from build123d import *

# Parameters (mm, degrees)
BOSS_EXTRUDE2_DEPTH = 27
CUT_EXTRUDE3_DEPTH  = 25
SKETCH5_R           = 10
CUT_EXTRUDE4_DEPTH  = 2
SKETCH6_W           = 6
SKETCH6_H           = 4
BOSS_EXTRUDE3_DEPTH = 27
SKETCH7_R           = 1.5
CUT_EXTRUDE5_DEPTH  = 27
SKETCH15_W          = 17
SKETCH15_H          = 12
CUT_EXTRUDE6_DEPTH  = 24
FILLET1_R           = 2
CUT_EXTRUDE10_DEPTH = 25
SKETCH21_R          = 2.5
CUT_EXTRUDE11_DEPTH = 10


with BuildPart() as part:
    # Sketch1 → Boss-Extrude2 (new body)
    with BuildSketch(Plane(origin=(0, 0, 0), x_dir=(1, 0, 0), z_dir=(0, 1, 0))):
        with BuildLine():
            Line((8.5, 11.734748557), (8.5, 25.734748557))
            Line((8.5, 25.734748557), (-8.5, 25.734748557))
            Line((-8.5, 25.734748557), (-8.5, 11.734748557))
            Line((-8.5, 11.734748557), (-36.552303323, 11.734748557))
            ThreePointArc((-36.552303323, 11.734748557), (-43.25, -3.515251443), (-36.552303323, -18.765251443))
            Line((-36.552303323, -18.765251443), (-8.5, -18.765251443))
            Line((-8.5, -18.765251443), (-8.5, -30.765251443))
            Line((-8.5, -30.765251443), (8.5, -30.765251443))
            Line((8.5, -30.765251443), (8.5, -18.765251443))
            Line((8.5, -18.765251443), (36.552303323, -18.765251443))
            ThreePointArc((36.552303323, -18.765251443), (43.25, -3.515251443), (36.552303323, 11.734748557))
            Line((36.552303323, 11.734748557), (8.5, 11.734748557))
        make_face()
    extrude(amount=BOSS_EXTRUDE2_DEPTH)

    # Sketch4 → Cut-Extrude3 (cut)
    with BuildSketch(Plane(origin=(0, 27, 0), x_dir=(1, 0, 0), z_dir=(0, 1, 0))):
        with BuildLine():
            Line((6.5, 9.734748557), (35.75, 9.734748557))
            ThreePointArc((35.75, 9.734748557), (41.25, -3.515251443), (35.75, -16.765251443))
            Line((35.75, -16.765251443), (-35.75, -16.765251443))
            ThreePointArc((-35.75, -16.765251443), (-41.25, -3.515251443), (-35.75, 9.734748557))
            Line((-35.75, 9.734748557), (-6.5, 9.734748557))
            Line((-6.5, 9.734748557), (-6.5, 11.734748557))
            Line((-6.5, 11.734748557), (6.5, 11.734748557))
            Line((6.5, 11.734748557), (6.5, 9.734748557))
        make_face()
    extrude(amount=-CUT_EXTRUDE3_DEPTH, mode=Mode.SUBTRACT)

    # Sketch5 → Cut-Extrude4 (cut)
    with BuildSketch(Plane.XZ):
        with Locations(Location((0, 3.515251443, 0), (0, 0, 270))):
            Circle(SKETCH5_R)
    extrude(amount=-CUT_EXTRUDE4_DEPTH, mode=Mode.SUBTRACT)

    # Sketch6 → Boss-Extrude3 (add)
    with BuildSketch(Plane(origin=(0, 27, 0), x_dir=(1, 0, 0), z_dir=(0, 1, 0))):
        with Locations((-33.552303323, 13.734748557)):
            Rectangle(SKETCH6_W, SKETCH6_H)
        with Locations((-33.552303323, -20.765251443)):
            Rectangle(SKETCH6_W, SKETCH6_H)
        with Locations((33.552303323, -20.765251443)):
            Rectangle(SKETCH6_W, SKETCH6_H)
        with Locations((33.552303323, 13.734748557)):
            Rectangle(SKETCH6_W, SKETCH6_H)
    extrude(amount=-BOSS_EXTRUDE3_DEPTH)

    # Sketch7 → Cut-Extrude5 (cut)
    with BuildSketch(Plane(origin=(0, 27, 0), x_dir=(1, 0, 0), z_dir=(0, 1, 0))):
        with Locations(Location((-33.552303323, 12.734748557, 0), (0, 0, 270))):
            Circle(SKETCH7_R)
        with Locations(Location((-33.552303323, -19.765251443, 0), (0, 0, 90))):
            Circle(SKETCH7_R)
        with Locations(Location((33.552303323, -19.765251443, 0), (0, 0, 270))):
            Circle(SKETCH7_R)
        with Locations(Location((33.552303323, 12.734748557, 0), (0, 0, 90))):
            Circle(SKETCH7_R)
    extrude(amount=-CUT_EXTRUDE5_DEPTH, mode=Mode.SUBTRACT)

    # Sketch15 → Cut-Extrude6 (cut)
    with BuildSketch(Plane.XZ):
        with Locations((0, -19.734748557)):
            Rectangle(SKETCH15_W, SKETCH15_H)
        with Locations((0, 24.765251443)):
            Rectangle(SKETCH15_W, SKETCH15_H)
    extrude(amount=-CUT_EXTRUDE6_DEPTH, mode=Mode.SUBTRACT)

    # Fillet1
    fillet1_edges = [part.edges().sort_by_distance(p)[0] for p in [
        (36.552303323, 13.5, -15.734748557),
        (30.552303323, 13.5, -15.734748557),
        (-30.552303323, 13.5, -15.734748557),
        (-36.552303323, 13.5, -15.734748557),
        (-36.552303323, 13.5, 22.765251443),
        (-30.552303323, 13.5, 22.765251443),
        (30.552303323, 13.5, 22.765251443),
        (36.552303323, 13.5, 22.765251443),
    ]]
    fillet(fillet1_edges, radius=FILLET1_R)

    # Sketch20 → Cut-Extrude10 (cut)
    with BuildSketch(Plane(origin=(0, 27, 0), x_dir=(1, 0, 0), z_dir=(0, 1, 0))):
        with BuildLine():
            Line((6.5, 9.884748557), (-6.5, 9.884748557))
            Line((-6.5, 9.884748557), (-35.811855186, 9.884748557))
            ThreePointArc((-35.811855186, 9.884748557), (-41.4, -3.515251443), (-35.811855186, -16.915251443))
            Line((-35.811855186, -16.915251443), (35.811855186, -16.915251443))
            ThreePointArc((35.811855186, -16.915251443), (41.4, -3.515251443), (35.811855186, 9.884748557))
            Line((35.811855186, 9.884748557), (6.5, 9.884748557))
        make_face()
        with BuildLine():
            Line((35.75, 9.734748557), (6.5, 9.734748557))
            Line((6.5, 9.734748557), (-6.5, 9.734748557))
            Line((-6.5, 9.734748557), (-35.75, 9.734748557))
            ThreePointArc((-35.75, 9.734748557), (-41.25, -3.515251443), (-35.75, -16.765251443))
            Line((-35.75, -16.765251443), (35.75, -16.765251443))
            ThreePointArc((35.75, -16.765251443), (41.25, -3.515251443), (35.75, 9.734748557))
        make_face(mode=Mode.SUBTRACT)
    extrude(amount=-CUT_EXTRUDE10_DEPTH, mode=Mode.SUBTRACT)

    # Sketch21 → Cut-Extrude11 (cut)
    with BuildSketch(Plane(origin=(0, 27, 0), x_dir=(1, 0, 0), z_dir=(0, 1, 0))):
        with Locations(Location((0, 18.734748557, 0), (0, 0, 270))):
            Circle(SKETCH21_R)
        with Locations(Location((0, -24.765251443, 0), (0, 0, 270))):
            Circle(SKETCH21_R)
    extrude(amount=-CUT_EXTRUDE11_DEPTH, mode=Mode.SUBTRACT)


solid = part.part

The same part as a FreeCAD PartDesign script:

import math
import FreeCAD as App
import Part
import Sketcher
from FreeCAD import Vector
Q = App.Units.Quantity


def edges_at(feature, points):
    """Names of the edges that pass closest to the given points."""
    edges = feature.Shape.Edges
    near = lambda p: min(range(len(edges)), key=lambda i: edges[i].distToShape(Part.Vertex(*p))[0])
    return sorted({f"Edge{near(p) + 1}" for p in points})

doc = App.newDocument("Part")
body = doc.addObject("PartDesign::Body", "Body")

# Sketch on XZ plane
sketch1 = doc.addObject("Sketcher::SketchObject", "Sketch")
body.addObject(sketch1)
sketch1.AttachmentSupport = (doc.XZ_Plane, [""])
sketch1.MapMode = "FlatFace"
sketch1.addGeometry(Part.LineSegment(Vector(8.5, -11.734749, 0), Vector(8.5, -25.734749, 0)), False)
sketch1.addGeometry(Part.LineSegment(Vector(8.5, -25.734749, 0), Vector(-8.5, -25.734749, 0)), False)
sketch1.addGeometry(Part.LineSegment(Vector(-8.5, -25.734749, 0), Vector(-8.5, -11.734749, 0)), False)
sketch1.addGeometry(Part.LineSegment(Vector(-8.5, -11.734749, 0), Vector(-36.552303, -11.734749, 0)), False)
sketch1.addGeometry(Part.ArcOfCircle(Part.Circle(Vector(-22.539773, 3.515251, 0), Vector(0, 0, 1), 20.710227), math.radians(132.578488), math.radians(227.421512)), False)
sketch1.addGeometry(Part.LineSegment(Vector(-36.552303, 18.765251, 0), Vector(-8.5, 18.765251, 0)), False)
sketch1.addGeometry(Part.LineSegment(Vector(-8.5, 18.765251, 0), Vector(-8.5, 30.765251, 0)), False)
sketch1.addGeometry(Part.LineSegment(Vector(-8.5, 30.765251, 0), Vector(8.5, 30.765251, 0)), False)
sketch1.addGeometry(Part.LineSegment(Vector(8.5, 30.765251, 0), Vector(8.5, 18.765251, 0)), False)
sketch1.addGeometry(Part.LineSegment(Vector(8.5, 18.765251, 0), Vector(36.552303, 18.765251, 0)), False)
sketch1.addGeometry(Part.ArcOfCircle(Part.Circle(Vector(22.539773, 3.515251, 0), Vector(0, 0, 1), 20.710227), math.radians(-47.421512), math.radians(47.421512)), False)
sketch1.addGeometry(Part.LineSegment(Vector(36.552303, -11.734749, 0), Vector(8.5, -11.734749, 0)), False)
sketch1.addConstraint(Sketcher.Constraint("Coincident", 0, 2, 1, 1))
sketch1.addConstraint(Sketcher.Constraint("Coincident", 1, 2, 2, 1))
sketch1.addConstraint(Sketcher.Constraint("Coincident", 2, 2, 3, 1))
sketch1.addConstraint(Sketcher.Constraint("Coincident", 3, 2, 4, 2))
sketch1.addConstraint(Sketcher.Constraint("Coincident", 4, 1, 5, 1))
sketch1.addConstraint(Sketcher.Constraint("Coincident", 5, 2, 6, 1))
sketch1.addConstraint(Sketcher.Constraint("Coincident", 6, 2, 7, 1))
sketch1.addConstraint(Sketcher.Constraint("Coincident", 7, 2, 8, 1))
sketch1.addConstraint(Sketcher.Constraint("Coincident", 8, 2, 9, 1))
sketch1.addConstraint(Sketcher.Constraint("Coincident", 9, 2, 10, 2))
sketch1.addConstraint(Sketcher.Constraint("Coincident", 10, 1, 11, 1))
sketch1.addConstraint(Sketcher.Constraint("Coincident", 11, 2, 0, 1))
sketch1.addConstraint(Sketcher.Constraint("Vertical", 0))
sketch1.addConstraint(Sketcher.Constraint("Horizontal", 1))
sketch1.addConstraint(Sketcher.Constraint("Vertical", 2))
sketch1.addConstraint(Sketcher.Constraint("Horizontal", 3))
sketch1.addConstraint(Sketcher.Constraint("Horizontal", 5))
sketch1.addConstraint(Sketcher.Constraint("Vertical", 6))
sketch1.addConstraint(Sketcher.Constraint("Horizontal", 7))
sketch1.addConstraint(Sketcher.Constraint("Vertical", 8))
sketch1.addConstraint(Sketcher.Constraint("Horizontal", 9))
sketch1.addConstraint(Sketcher.Constraint("Horizontal", 11))
sketch1.addConstraint(Sketcher.Constraint("Equal", 4, 10))
sketch1.addConstraint(Sketcher.Constraint("Symmetric", 4, 3, 10, 3, -2))
sketch1.addConstraint(Sketcher.Constraint("Symmetric", 5, 2, 8, 2, -2))
sketch1.addConstraint(Sketcher.Constraint("Symmetric", 2, 2, 11, 2, -2))
sketch1.addConstraint(Sketcher.Constraint("Vertical", 3, 2, 4, 1))
sketch1.addConstraint(Sketcher.Constraint("Vertical", 2, 2, 5, 2))
sketch1.addConstraint(Sketcher.Constraint("DistanceX", 1, 2, 1, 1, Q("17 mm")))
sketch1.addConstraint(Sketcher.Constraint("DistanceY", 0, 2, 0, 1, Q("14 mm")))
sketch1.addConstraint(Sketcher.Constraint("DistanceY", 6, 1, 6, 2, Q("12 mm")))
sketch1.addConstraint(Sketcher.Constraint("DistanceY", 3, 2, 4, 1, Q("30.5 mm")))
sketch1.addConstraint(Sketcher.Constraint("Radius", 4, Q("20.710227 mm")))
sketch1.addConstraint(Sketcher.Constraint("DistanceX", 3, 2, 3, 1, Q("28.052303 mm")))
sketch1.addConstraint(Sketcher.Constraint("DistanceY", -1, 1, 4, 3, Q("3.515251 mm")))
pad1 = doc.addObject("PartDesign::Pad", "Pad")
body.addObject(pad1)
pad1.Profile = sketch1
pad1.Length = 27
pad1.Reversed = True

# Sketch on XZ plane
sketch2 = doc.addObject("Sketcher::SketchObject", "Sketch001")
body.addObject(sketch2)
sketch2.AttachmentSupport = (doc.XZ_Plane, [""])
sketch2.MapMode = "FlatFace"
sketch2.AttachmentOffset = App.Placement(Vector(0, 0, -27), App.Rotation())
sketch2.addGeometry(Part.LineSegment(Vector(35.75, -9.734749, 0), Vector(6.5, -9.734749, 0)), False)
sketch2.addGeometry(Part.LineSegment(Vector(6.5, -9.734749, 0), Vector(6.5, -11.734749, 0)), False)
sketch2.addGeometry(Part.LineSegment(Vector(6.5, -11.734749, 0), Vector(-6.5, -11.734749, 0)), False)
sketch2.addGeometry(Part.LineSegment(Vector(-6.5, -11.734749, 0), Vector(-6.5, -9.734749, 0)), False)
sketch2.addGeometry(Part.LineSegment(Vector(-6.5, -9.734749, 0), Vector(-35.75, -9.734749, 0)), False)
sketch2.addGeometry(Part.ArcOfCircle(Part.Circle(Vector(-22.539773, 3.515251, 0), Vector(0, 0, 1), 18.710227), math.radians(134.913878), math.radians(225.086122)), False)
sketch2.addGeometry(Part.LineSegment(Vector(-35.75, 16.765251, 0), Vector(35.75, 16.765251, 0)), False)
sketch2.addGeometry(Part.ArcOfCircle(Part.Circle(Vector(22.539773, 3.515251, 0), Vector(0, 0, 1), 18.710227), math.radians(-45.086122), math.radians(45.086122)), False)
sketch2.addConstraint(Sketcher.Constraint("Coincident", 0, 2, 1, 1))
sketch2.addConstraint(Sketcher.Constraint("Coincident", 1, 2, 2, 1))
sketch2.addConstraint(Sketcher.Constraint("Coincident", 2, 2, 3, 1))
sketch2.addConstraint(Sketcher.Constraint("Coincident", 3, 2, 4, 1))
sketch2.addConstraint(Sketcher.Constraint("Coincident", 4, 2, 5, 2))
sketch2.addConstraint(Sketcher.Constraint("Coincident", 5, 1, 6, 1))
sketch2.addConstraint(Sketcher.Constraint("Coincident", 6, 2, 7, 2))
sketch2.addConstraint(Sketcher.Constraint("Coincident", 7, 1, 0, 1))
sketch2.addConstraint(Sketcher.Constraint("Horizontal", 0))
sketch2.addConstraint(Sketcher.Constraint("Vertical", 1))
sketch2.addConstraint(Sketcher.Constraint("Horizontal", 2))
sketch2.addConstraint(Sketcher.Constraint("Vertical", 3))
sketch2.addConstraint(Sketcher.Constraint("Horizontal", 4))
sketch2.addConstraint(Sketcher.Constraint("Horizontal", 6))
sketch2.addConstraint(Sketcher.Constraint("Equal", 5, 7))
sketch2.addConstraint(Sketcher.Constraint("Symmetric", 5, 3, 7, 3, -2))
sketch2.addConstraint(Sketcher.Constraint("Symmetric", 0, 2, 3, 2, -2))
sketch2.addConstraint(Sketcher.Constraint("Vertical", 4, 2, 5, 1))
sketch2.addConstraint(Sketcher.Constraint("DistanceX", 2, 2, 2, 1, Q("13 mm")))
sketch2.addConstraint(Sketcher.Constraint("DistanceY", 1, 2, 1, 1, Q("2 mm")))
sketch2.addConstraint(Sketcher.Constraint("DistanceX", 6, 1, 6, 2, Q("71.5 mm")))
sketch2.addConstraint(Sketcher.Constraint("DistanceY", 4, 2, 5, 1, Q("26.5 mm")))
sketch2.addConstraint(Sketcher.Constraint("Radius", 5, Q("18.710227 mm")))
sketch2.addConstraint(Sketcher.Constraint("DistanceY", -1, 1, 5, 3, Q("3.515251 mm")))
pocket1 = doc.addObject("PartDesign::Pocket", "Pocket")
body.addObject(pocket1)
pocket1.Profile = sketch2
pocket1.Length = 25
pocket1.Reversed = True

# Sketch on XZ plane
sketch3 = doc.addObject("Sketcher::SketchObject", "Sketch002")
body.addObject(sketch3)
sketch3.AttachmentSupport = (doc.XZ_Plane, [""])
sketch3.MapMode = "FlatFace"
sketch3.addGeometry(Part.Circle(Vector(0, 3.515251, 0), Vector(0, 0, 1), 10), False)
sketch3.addConstraint(Sketcher.Constraint("PointOnObject", 0, 3, -2))
sketch3.addConstraint(Sketcher.Constraint("Diameter", 0, Q("20 mm")))
sketch3.addConstraint(Sketcher.Constraint("DistanceY", -1, 1, 0, 3, Q("3.515251 mm")))
pocket2 = doc.addObject("PartDesign::Pocket", "Pocket001")
body.addObject(pocket2)
pocket2.Profile = sketch3
pocket2.Length = 2

# Sketch on XZ plane
sketch4 = doc.addObject("Sketcher::SketchObject", "Sketch003")
body.addObject(sketch4)
sketch4.AttachmentSupport = (doc.XZ_Plane, [""])
sketch4.MapMode = "FlatFace"
sketch4.AttachmentOffset = App.Placement(Vector(0, 0, -27), App.Rotation())
sketch4.addGeometry(Part.LineSegment(Vector(-36.552303, -15.734749, 0), Vector(-36.552303, -11.734749, 0)), False)
sketch4.addGeometry(Part.LineSegment(Vector(-36.552303, -11.734749, 0), Vector(-30.552303, -11.734749, 0)), False)
sketch4.addGeometry(Part.LineSegment(Vector(-30.552303, -11.734749, 0), Vector(-30.552303, -15.734749, 0)), False)
sketch4.addGeometry(Part.LineSegment(Vector(-30.552303, -15.734749, 0), Vector(-36.552303, -15.734749, 0)), False)
sketch4.addGeometry(Part.LineSegment(Vector(-36.552303, 18.765251, 0), Vector(-36.552303, 22.765251, 0)), False)
sketch4.addGeometry(Part.LineSegment(Vector(-36.552303, 22.765251, 0), Vector(-30.552303, 22.765251, 0)), False)
sketch4.addGeometry(Part.LineSegment(Vector(-30.552303, 22.765251, 0), Vector(-30.552303, 18.765251, 0)), False)
sketch4.addGeometry(Part.LineSegment(Vector(-30.552303, 18.765251, 0), Vector(-36.552303, 18.765251, 0)), False)
sketch4.addGeometry(Part.LineSegment(Vector(30.552303, 18.765251, 0), Vector(30.552303, 22.765251, 0)), False)
sketch4.addGeometry(Part.LineSegment(Vector(30.552303, 22.765251, 0), Vector(36.552303, 22.765251, 0)), False)
sketch4.addGeometry(Part.LineSegment(Vector(36.552303, 22.765251, 0), Vector(36.552303, 18.765251, 0)), False)
sketch4.addGeometry(Part.LineSegment(Vector(36.552303, 18.765251, 0), Vector(30.552303, 18.765251, 0)), False)
sketch4.addGeometry(Part.LineSegment(Vector(30.552303, -15.734749, 0), Vector(30.552303, -11.734749, 0)), False)
sketch4.addGeometry(Part.LineSegment(Vector(30.552303, -11.734749, 0), Vector(36.552303, -11.734749, 0)), False)
sketch4.addGeometry(Part.LineSegment(Vector(36.552303, -11.734749, 0), Vector(36.552303, -15.734749, 0)), False)
sketch4.addGeometry(Part.LineSegment(Vector(36.552303, -15.734749, 0), Vector(30.552303, -15.734749, 0)), False)
sketch4.addConstraint(Sketcher.Constraint("Coincident", 0, 2, 1, 1))
sketch4.addConstraint(Sketcher.Constraint("Coincident", 1, 2, 2, 1))
sketch4.addConstraint(Sketcher.Constraint("Coincident", 2, 2, 3, 1))
sketch4.addConstraint(Sketcher.Constraint("Coincident", 3, 2, 0, 1))
sketch4.addConstraint(Sketcher.Constraint("Coincident", 4, 2, 5, 1))
sketch4.addConstraint(Sketcher.Constraint("Coincident", 5, 2, 6, 1))
sketch4.addConstraint(Sketcher.Constraint("Coincident", 6, 2, 7, 1))
sketch4.addConstraint(Sketcher.Constraint("Coincident", 7, 2, 4, 1))
sketch4.addConstraint(Sketcher.Constraint("Coincident", 8, 2, 9, 1))
sketch4.addConstraint(Sketcher.Constraint("Coincident", 9, 2, 10, 1))
sketch4.addConstraint(Sketcher.Constraint("Coincident", 10, 2, 11, 1))
sketch4.addConstraint(Sketcher.Constraint("Coincident", 11, 2, 8, 1))
sketch4.addConstraint(Sketcher.Constraint("Coincident", 12, 2, 13, 1))
sketch4.addConstraint(Sketcher.Constraint("Coincident", 13, 2, 14, 1))
sketch4.addConstraint(Sketcher.Constraint("Coincident", 14, 2, 15, 1))
sketch4.addConstraint(Sketcher.Constraint("Coincident", 15, 2, 12, 1))
sketch4.addConstraint(Sketcher.Constraint("Vertical", 0))
sketch4.addConstraint(Sketcher.Constraint("Horizontal", 1))
sketch4.addConstraint(Sketcher.Constraint("Vertical", 2))
sketch4.addConstraint(Sketcher.Constraint("Horizontal", 3))
sketch4.addConstraint(Sketcher.Constraint("Vertical", 4))
sketch4.addConstraint(Sketcher.Constraint("Horizontal", 5))
sketch4.addConstraint(Sketcher.Constraint("Vertical", 6))
sketch4.addConstraint(Sketcher.Constraint("Horizontal", 7))
sketch4.addConstraint(Sketcher.Constraint("Vertical", 8))
sketch4.addConstraint(Sketcher.Constraint("Horizontal", 9))
sketch4.addConstraint(Sketcher.Constraint("Vertical", 10))
sketch4.addConstraint(Sketcher.Constraint("Horizontal", 11))
sketch4.addConstraint(Sketcher.Constraint("Vertical", 12))
sketch4.addConstraint(Sketcher.Constraint("Horizontal", 13))
sketch4.addConstraint(Sketcher.Constraint("Vertical", 14))
sketch4.addConstraint(Sketcher.Constraint("Horizontal", 15))
sketch4.addConstraint(Sketcher.Constraint("Symmetric", 5, 2, 8, 2, -2))
sketch4.addConstraint(Sketcher.Constraint("Symmetric", 7, 2, 10, 2, -2))
sketch4.addConstraint(Sketcher.Constraint("Symmetric", 1, 2, 12, 2, -2))
sketch4.addConstraint(Sketcher.Constraint("Symmetric", 3, 2, 14, 2, -2))
sketch4.addConstraint(Sketcher.Constraint("Vertical", 3, 2, 4, 2))
sketch4.addConstraint(Sketcher.Constraint("Vertical", 2, 2, 5, 2))
sketch4.addConstraint(Sketcher.Constraint("Equal", 2, 4))
sketch4.addConstraint(Sketcher.Constraint("DistanceX", 1, 1, 1, 2, Q("6 mm")))
sketch4.addConstraint(Sketcher.Constraint("DistanceY", 0, 1, 0, 2, Q("4 mm")))
sketch4.addConstraint(Sketcher.Constraint("DistanceY", 0, 2, 4, 2, Q("34.5 mm")))
sketch4.addConstraint(Sketcher.Constraint("DistanceY", 0, 2, -1, 1, Q("11.734749 mm")))
sketch4.addConstraint(Sketcher.Constraint("DistanceX", 0, 2, -1, 1, Q("36.552303 mm")))
pad2 = doc.addObject("PartDesign::Pad", "Pad001")
body.addObject(pad2)
pad2.Profile = sketch4
pad2.Length = 27

# Sketch on XZ plane
sketch5 = doc.addObject("Sketcher::SketchObject", "Sketch004")
body.addObject(sketch5)
sketch5.AttachmentSupport = (doc.XZ_Plane, [""])
sketch5.MapMode = "FlatFace"
sketch5.AttachmentOffset = App.Placement(Vector(0, 0, -27), App.Rotation())
sketch5.addGeometry(Part.Circle(Vector(-33.552303, -12.734749, 0), Vector(0, 0, 1), 1.5), False)
sketch5.addGeometry(Part.Circle(Vector(-33.552303, 19.765251, 0), Vector(0, 0, 1), 1.5), False)
sketch5.addGeometry(Part.Circle(Vector(33.552303, 19.765251, 0), Vector(0, 0, 1), 1.5), False)
sketch5.addGeometry(Part.Circle(Vector(33.552303, -12.734749, 0), Vector(0, 0, 1), 1.5), False)
sketch5.addConstraint(Sketcher.Constraint("Equal", 0, 1))
sketch5.addConstraint(Sketcher.Constraint("Equal", 1, 2))
sketch5.addConstraint(Sketcher.Constraint("Equal", 2, 3))
sketch5.addConstraint(Sketcher.Constraint("Symmetric", 1, 3, 2, 3, -2))
sketch5.addConstraint(Sketcher.Constraint("Symmetric", 0, 3, 3, 3, -2))
sketch5.addConstraint(Sketcher.Constraint("Vertical", 0, 3, 1, 3))
sketch5.addConstraint(Sketcher.Constraint("Diameter", 0, Q("3 mm")))
sketch5.addConstraint(Sketcher.Constraint("DistanceY", 0, 3, 1, 3, Q("32.5 mm")))
sketch5.addConstraint(Sketcher.Constraint("DistanceY", 0, 3, -1, 1, Q("12.734749 mm")))
sketch5.addConstraint(Sketcher.Constraint("DistanceX", 0, 3, -1, 1, Q("33.552303 mm")))
pocket3 = doc.addObject("PartDesign::Pocket", "Pocket002")
body.addObject(pocket3)
pocket3.Profile = sketch5
pocket3.Length = 27
pocket3.Reversed = True

# Sketch on XZ plane
sketch6 = doc.addObject("Sketcher::SketchObject", "Sketch005")
body.addObject(sketch6)
sketch6.AttachmentSupport = (doc.XZ_Plane, [""])
sketch6.MapMode = "FlatFace"
sketch6.addGeometry(Part.LineSegment(Vector(-8.5, -13.734749, 0), Vector(-8.5, -25.734749, 0)), False)
sketch6.addGeometry(Part.LineSegment(Vector(-8.5, -25.734749, 0), Vector(8.5, -25.734749, 0)), False)
sketch6.addGeometry(Part.LineSegment(Vector(8.5, -25.734749, 0), Vector(8.5, -13.734749, 0)), False)
sketch6.addGeometry(Part.LineSegment(Vector(8.5, -13.734749, 0), Vector(-8.5, -13.734749, 0)), False)
sketch6.addGeometry(Part.LineSegment(Vector(-8.5, 30.765251, 0), Vector(-8.5, 18.765251, 0)), False)
sketch6.addGeometry(Part.LineSegment(Vector(-8.5, 18.765251, 0), Vector(8.5, 18.765251, 0)), False)
sketch6.addGeometry(Part.LineSegment(Vector(8.5, 18.765251, 0), Vector(8.5, 30.765251, 0)), False)
sketch6.addGeometry(Part.LineSegment(Vector(8.5, 30.765251, 0), Vector(-8.5, 30.765251, 0)), False)
sketch6.addConstraint(Sketcher.Constraint("Coincident", 0, 2, 1, 1))
sketch6.addConstraint(Sketcher.Constraint("Coincident", 1, 2, 2, 1))
sketch6.addConstraint(Sketcher.Constraint("Coincident", 2, 2, 3, 1))
sketch6.addConstraint(Sketcher.Constraint("Coincident", 3, 2, 0, 1))
sketch6.addConstraint(Sketcher.Constraint("Coincident", 4, 2, 5, 1))
sketch6.addConstraint(Sketcher.Constraint("Coincident", 5, 2, 6, 1))
sketch6.addConstraint(Sketcher.Constraint("Coincident", 6, 2, 7, 1))
sketch6.addConstraint(Sketcher.Constraint("Coincident", 7, 2, 4, 1))
sketch6.addConstraint(Sketcher.Constraint("Vertical", 0))
sketch6.addConstraint(Sketcher.Constraint("Horizontal", 1))
sketch6.addConstraint(Sketcher.Constraint("Vertical", 2))
sketch6.addConstraint(Sketcher.Constraint("Horizontal", 3))
sketch6.addConstraint(Sketcher.Constraint("Vertical", 4))
sketch6.addConstraint(Sketcher.Constraint("Horizontal", 5))
sketch6.addConstraint(Sketcher.Constraint("Vertical", 6))
sketch6.addConstraint(Sketcher.Constraint("Horizontal", 7))
sketch6.addConstraint(Sketcher.Constraint("Vertical", 3, 2, 4, 2))
sketch6.addConstraint(Sketcher.Constraint("Vertical", 2, 2, 5, 2))
sketch6.addConstraint(Sketcher.Constraint("Equal", 2, 4))
sketch6.addConstraint(Sketcher.Constraint("DistanceX", 1, 1, 1, 2, Q("17 mm")))
sketch6.addConstraint(Sketcher.Constraint("DistanceY", 0, 2, 0, 1, Q("12 mm")))
sketch6.addConstraint(Sketcher.Constraint("DistanceX", 0, 2, -1, 1, Q("8.5 mm")))
sketch6.addConstraint(Sketcher.Constraint("DistanceY", 3, 2, 4, 2, Q("32.5 mm")))
sketch6.addConstraint(Sketcher.Constraint("DistanceY", 0, 2, -1, 1, Q("25.734749 mm")))
pocket4 = doc.addObject("PartDesign::Pocket", "Pocket003")
body.addObject(pocket4)
pocket4.Profile = sketch6
pocket4.Length = 24
doc.recompute()

fillet = doc.addObject("PartDesign::Fillet", "Fillet")
body.addObject(fillet)
fillet.Base = (pocket4, edges_at(pocket4, [
    (36.552, 13.5, -15.735),
    (30.552, 13.5, -15.735),
    (-30.552, 13.5, -15.735),
    (-36.552, 13.5, -15.735),
    (-36.552, 13.5, 22.765),
    (-30.552, 13.5, 22.765),
    (30.552, 13.5, 22.765),
    (36.552, 13.5, 22.765),
]))
fillet.Radius = 2

# Sketch on XZ plane
sketch7 = doc.addObject("Sketcher::SketchObject", "Sketch006")
body.addObject(sketch7)
sketch7.AttachmentSupport = (doc.XZ_Plane, [""])
sketch7.MapMode = "FlatFace"
sketch7.AttachmentOffset = App.Placement(Vector(0, 0, -27), App.Rotation())
sketch7.addGeometry(Part.ArcOfCircle(Part.Circle(Vector(-22.539773, 3.515251, 0), Vector(0, 0, 1), 18.860227), math.radians(134.725215), math.radians(225.274785)), False)
sketch7.addGeometry(Part.LineSegment(Vector(-35.811855, 16.915251, 0), Vector(35.811855, 16.915251, 0)), False)
sketch7.addGeometry(Part.ArcOfCircle(Part.Circle(Vector(22.539773, 3.515251, 0), Vector(0, 0, 1), 18.860227), math.radians(-45.274785), math.radians(45.274785)), False)
sketch7.addGeometry(Part.LineSegment(Vector(35.811855, -9.884749, 0), Vector(-35.811855, -9.884749, 0)), False)
sketch7.addGeometry(Part.LineSegment(Vector(-35.75, -9.734749, 0), Vector(35.75, -9.734749, 0)), False)
sketch7.addGeometry(Part.ArcOfCircle(Part.Circle(Vector(22.539773, 3.515251, 0), Vector(0, 0, 1), 18.710227), math.radians(-45.086122), math.radians(45.086122)), False)
sketch7.addGeometry(Part.LineSegment(Vector(35.75, 16.765251, 0), Vector(-35.75, 16.765251, 0)), False)
sketch7.addGeometry(Part.ArcOfCircle(Part.Circle(Vector(-22.539773, 3.515251, 0), Vector(0, 0, 1), 18.710227), math.radians(134.913878), math.radians(225.086122)), False)
sketch7.addConstraint(Sketcher.Constraint("Coincident", 0, 1, 1, 1))
sketch7.addConstraint(Sketcher.Constraint("Coincident", 1, 2, 2, 2))
sketch7.addConstraint(Sketcher.Constraint("Coincident", 2, 1, 3, 1))
sketch7.addConstraint(Sketcher.Constraint("Coincident", 3, 2, 0, 2))
sketch7.addConstraint(Sketcher.Constraint("Coincident", 4, 2, 5, 1))
sketch7.addConstraint(Sketcher.Constraint("Coincident", 5, 2, 6, 1))
sketch7.addConstraint(Sketcher.Constraint("Coincident", 6, 2, 7, 1))
sketch7.addConstraint(Sketcher.Constraint("Coincident", 7, 2, 4, 1))
sketch7.addConstraint(Sketcher.Constraint("Horizontal", 1))
sketch7.addConstraint(Sketcher.Constraint("Horizontal", 3))
sketch7.addConstraint(Sketcher.Constraint("Horizontal", 4))
sketch7.addConstraint(Sketcher.Constraint("Horizontal", 6))
sketch7.addConstraint(Sketcher.Constraint("Coincident", 5, 3, 2, 3))
sketch7.addConstraint(Sketcher.Constraint("Coincident", 7, 3, 0, 3))
sketch7.addConstraint(Sketcher.Constraint("Equal", 0, 2))
sketch7.addConstraint(Sketcher.Constraint("Equal", 5, 7))
sketch7.addConstraint(Sketcher.Constraint("Symmetric", 0, 3, 2, 3, -2))
sketch7.addConstraint(Sketcher.Constraint("Vertical", 1, 2, 2, 1))
sketch7.addConstraint(Sketcher.Constraint("Vertical", 4, 2, 5, 2))
sketch7.addConstraint(Sketcher.Constraint("DistanceX", 4, 1, 4, 2, Q("71.5 mm")))
sketch7.addConstraint(Sketcher.Constraint("DistanceY", 7, 3, 0, 1, Q("13.4 mm")))
sketch7.addConstraint(Sketcher.Constraint("DistanceY", 4, 2, 5, 2, Q("26.5 mm")))
sketch7.addConstraint(Sketcher.Constraint("Radius", 0, Q("18.860227 mm")))
sketch7.addConstraint(Sketcher.Constraint("Radius", 5, Q("18.710227 mm")))
sketch7.addConstraint(Sketcher.Constraint("DistanceY", -1, 1, 0, 3, Q("3.515251 mm")))
pocket5 = doc.addObject("PartDesign::Pocket", "Pocket004")
body.addObject(pocket5)
pocket5.Profile = sketch7
pocket5.Length = 25
pocket5.Reversed = True

# Sketch on XZ plane
sketch8 = doc.addObject("Sketcher::SketchObject", "Sketch007")
body.addObject(sketch8)
sketch8.AttachmentSupport = (doc.XZ_Plane, [""])
sketch8.MapMode = "FlatFace"
sketch8.AttachmentOffset = App.Placement(Vector(0, 0, -27), App.Rotation())
sketch8.addGeometry(Part.Circle(Vector(0, -18.734749, 0), Vector(0, 0, 1), 2.5), False)
sketch8.addGeometry(Part.Circle(Vector(0, 24.765251, 0), Vector(0, 0, 1), 2.5), False)
sketch8.addConstraint(Sketcher.Constraint("Equal", 0, 1))
sketch8.addConstraint(Sketcher.Constraint("PointOnObject", 0, 3, -2))
sketch8.addConstraint(Sketcher.Constraint("PointOnObject", 1, 3, -2))
sketch8.addConstraint(Sketcher.Constraint("Diameter", 0, Q("5 mm")))
sketch8.addConstraint(Sketcher.Constraint("DistanceY", 0, 3, 1, 3, Q("43.5 mm")))
sketch8.addConstraint(Sketcher.Constraint("DistanceY", 0, 3, -1, 1, Q("18.734749 mm")))
pocket6 = doc.addObject("PartDesign::Pocket", "Pocket005")
body.addObject(pocket6)
pocket6.Profile = sketch8
pocket6.Length = 10
pocket6.Reversed = True

doc.recompute()
